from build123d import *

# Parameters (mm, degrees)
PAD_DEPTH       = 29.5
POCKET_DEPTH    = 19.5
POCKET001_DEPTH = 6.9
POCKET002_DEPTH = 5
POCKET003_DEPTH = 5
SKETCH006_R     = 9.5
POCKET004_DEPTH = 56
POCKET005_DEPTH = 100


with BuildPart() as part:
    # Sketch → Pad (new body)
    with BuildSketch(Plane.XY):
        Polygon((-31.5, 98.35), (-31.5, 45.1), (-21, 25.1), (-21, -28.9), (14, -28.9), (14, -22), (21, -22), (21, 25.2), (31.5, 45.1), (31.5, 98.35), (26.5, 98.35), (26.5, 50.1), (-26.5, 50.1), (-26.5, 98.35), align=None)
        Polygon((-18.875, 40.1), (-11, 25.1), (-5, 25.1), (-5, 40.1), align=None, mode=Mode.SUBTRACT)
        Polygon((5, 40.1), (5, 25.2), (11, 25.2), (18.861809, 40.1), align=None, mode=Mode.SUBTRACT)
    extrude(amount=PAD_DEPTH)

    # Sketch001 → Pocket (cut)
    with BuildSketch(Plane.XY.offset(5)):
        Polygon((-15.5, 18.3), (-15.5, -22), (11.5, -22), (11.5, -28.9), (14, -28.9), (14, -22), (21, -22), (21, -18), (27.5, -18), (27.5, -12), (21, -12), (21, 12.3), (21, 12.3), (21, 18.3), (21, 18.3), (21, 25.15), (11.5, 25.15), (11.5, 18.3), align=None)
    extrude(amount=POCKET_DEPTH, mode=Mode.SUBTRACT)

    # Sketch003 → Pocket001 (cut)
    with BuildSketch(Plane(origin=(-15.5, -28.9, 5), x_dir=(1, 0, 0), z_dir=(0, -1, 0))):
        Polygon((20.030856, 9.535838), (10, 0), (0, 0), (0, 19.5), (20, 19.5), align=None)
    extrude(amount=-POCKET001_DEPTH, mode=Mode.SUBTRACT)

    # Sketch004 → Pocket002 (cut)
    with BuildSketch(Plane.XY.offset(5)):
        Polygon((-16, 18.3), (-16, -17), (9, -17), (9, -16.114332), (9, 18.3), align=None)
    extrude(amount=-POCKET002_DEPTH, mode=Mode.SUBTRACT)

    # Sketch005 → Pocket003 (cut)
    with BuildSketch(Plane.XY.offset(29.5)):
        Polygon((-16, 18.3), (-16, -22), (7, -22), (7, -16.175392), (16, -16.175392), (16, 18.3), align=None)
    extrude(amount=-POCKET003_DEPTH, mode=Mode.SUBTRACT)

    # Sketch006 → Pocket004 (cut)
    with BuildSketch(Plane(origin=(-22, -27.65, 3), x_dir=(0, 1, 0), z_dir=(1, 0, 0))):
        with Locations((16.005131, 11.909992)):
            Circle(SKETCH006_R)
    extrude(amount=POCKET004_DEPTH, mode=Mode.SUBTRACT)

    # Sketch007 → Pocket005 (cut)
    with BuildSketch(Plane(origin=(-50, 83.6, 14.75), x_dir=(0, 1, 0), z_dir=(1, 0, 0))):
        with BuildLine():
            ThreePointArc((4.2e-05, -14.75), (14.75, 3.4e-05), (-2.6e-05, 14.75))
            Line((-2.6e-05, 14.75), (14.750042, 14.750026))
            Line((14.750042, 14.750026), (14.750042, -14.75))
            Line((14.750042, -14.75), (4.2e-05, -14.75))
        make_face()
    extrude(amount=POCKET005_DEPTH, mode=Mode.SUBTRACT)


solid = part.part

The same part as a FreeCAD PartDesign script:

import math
import FreeCAD as App
import Part
import Sketcher

V = App.Vector

doc = App.newDocument("Part")
body = doc.addObject("PartDesign::Body", "Body")

sketch1 = doc.addObject("Sketcher::SketchObject", "Sketch")
body.addObject(sketch1)
sketch1.AttachmentSupport = (doc.XY_Plane, [""])
sketch1.MapMode = "FlatFace"
sketch1.addGeometry([
    Part.LineSegment(V(-32, 98, 0), V(-32, 45, 0)),
    Part.LineSegment(V(-32, 45, 0), V(-21, 25, 0)),
    Part.LineSegment(V(-21, 25, 0), V(-21, -29, 0)),
    Part.LineSegment(V(-21, -29, 0), V(14, -29, 0)),
    Part.LineSegment(V(14, -29, 0), V(14, -22, 0)),
    Part.LineSegment(V(14, -22, 0), V(21, -22, 0)),
    Part.LineSegment(V(21, -22, 0), V(21, 25, 0)),
    Part.LineSegment(V(21, 25, 0), V(32, 45, 0)),
    Part.LineSegment(V(32, 45, 0), V(32, 98, 0)),
    Part.LineSegment(V(32, 98, 0), V(26, 98, 0)),
    Part.LineSegment(V(26, 98, 0), V(26, 50, 0)),
    Part.LineSegment(V(26, 50, 0), V(-26, 50, 0)),
    Part.LineSegment(V(-26, 50, 0), V(-26, 98, 0)),
    Part.LineSegment(V(-26, 98, 0), V(-32, 98, 0)),
    Part.LineSegment(V(-11, 25, 0), V(-19, 40, 0)),
    Part.LineSegment(V(-19, 40, 0), V(-5, 40, 0)),
    Part.LineSegment(V(-5, 40, 0), V(-5, 25, 0)),
    Part.LineSegment(V(-5, 25, 0), V(-11, 25, 0)),
    Part.LineSegment(V(5, 25, 0), V(5, 40, 0)),
    Part.LineSegment(V(5, 40, 0), V(19, 40, 0)),
    Part.LineSegment(V(19, 40, 0), V(11, 25, 0)),
    Part.LineSegment(V(11, 25, 0), V(5, 25, 0)),
], False)
sketch1.addConstraint([
    Sketcher.Constraint("Coincident", 0, 2, 1, 1),
    Sketcher.Constraint("Coincident", 1, 2, 2, 1),
    Sketcher.Constraint("Coincident", 2, 2, 3, 1),
    Sketcher.Constraint("Coincident", 3, 2, 4, 1),
    Sketcher.Constraint("Coincident", 4, 2, 5, 1),
    Sketcher.Constraint("Coincident", 5, 2, 6, 1),
    Sketcher.Constraint("Coincident", 6, 2, 7, 1),
    Sketcher.Constraint("Coincident", 7, 2, 8, 1),
    Sketcher.Constraint("Coincident", 8, 2, 9, 1),
    Sketcher.Constraint("Coincident", 9, 2, 10, 1),
    Sketcher.Constraint("Coincident", 10, 2, 11, 1),
    Sketcher.Constraint("Coincident", 11, 2, 12, 1),
    Sketcher.Constraint("Coincident", 12, 2, 13, 1),
    Sketcher.Constraint("Coincident", 13, 2, 0, 1),
    Sketcher.Constraint("Coincident", 14, 2, 15, 1),
    Sketcher.Constraint("Coincident", 15, 2, 16, 1),
    Sketcher.Constraint("Coincident", 16, 2, 17, 1),
    Sketcher.Constraint("Coincident", 17, 2, 14, 1),
    Sketcher.Constraint("Coincident", 18, 2, 19, 1),
    Sketcher.Constraint("Coincident", 19, 2, 20, 1),
    Sketcher.Constraint("Coincident", 20, 2, 21, 1),
    Sketcher.Constraint("Coincident", 21, 2, 18, 1),
    Sketcher.Constraint("Vertical", 0),
    Sketcher.Constraint("Vertical", 2),
    Sketcher.Constraint("Horizontal", 3),
    Sketcher.Constraint("Vertical", 4),
    Sketcher.Constraint("Horizontal", 5),
    Sketcher.Constraint("Vertical", 6),
    Sketcher.Constraint("Vertical", 8),
    Sketcher.Constraint("Horizontal", 9),
    Sketcher.Constraint("Vertical", 10),
    Sketcher.Constraint("Horizontal", 11),
    Sketcher.Constraint("Vertical", 12),
    Sketcher.Constraint("Horizontal", 13),
    Sketcher.Constraint("Horizontal", 15),
    Sketcher.Constraint("Vertical", 16),
    Sketcher.Constraint("Horizontal", 17),
    Sketcher.Constraint("Vertical", 18),
    Sketcher.Constraint("Horizontal", 19),
    Sketcher.Constraint("Horizontal", 21),
    Sketcher.Constraint("Symmetric", 0, 2, 7, 2, -2),
    Sketcher.Constraint("Symmetric", 9, 2, 12, 2, -2),
    Sketcher.Constraint("Symmetric", 15, 2, 18, 2, -2),
    Sketcher.Constraint("Parallel", 1, 14),
    Sketcher.Constraint("Parallel", 7, 20),
    Sketcher.Constraint("Horizontal", 1, 2, 16, 2),
    Sketcher.Constraint("Horizontal", 6, 2, 20, 2),
    Sketcher.Constraint("Equal", 17, 21),
    Sketcher.Constraint("DistanceX", 3, 1, 3, 2, 35.0),
    Sketcher.Constraint("DistanceX", 5, 1, 5, 2, 7.0),
    Sketcher.Constraint("DistanceX", 9, 2, 9, 1, 5.0),
    Sketcher.Constraint("DistanceX", 11, 2, 11, 1, 53.0),
    Sketcher.Constraint("DistanceX", 17, 2, 17, 1, 6.0),
    Sketcher.Constraint("DistanceY", 2, 2, 2, 1, 54.0),
    Sketcher.Constraint("DistanceY", 16, 2, 16, 1, 15.0),
    Sketcher.Constraint("DistanceY", 4, 1, 4, 2, 6.9),
    Sketcher.Constraint("DistanceY", 6, 1, 6, 2, 47.2),
    Sketcher.Constraint("DistanceX", 1, 2, -1, 1, 21.0),
    Sketcher.Constraint("DistanceY", 4, 2, -1, 1, 22.0),
    Sketcher.Constraint("DistanceX", 15, 2, -1, 1, 5.0),
    Sketcher.Constraint("DistanceY", 1, 2, 0, 2, 20.0),
    Sketcher.Constraint("DistanceY", 7, 2, 10, 2, 5.0),
    Sketcher.Constraint("DistanceY", 0, 2, 0, 1, 53.25),
])
pad1 = doc.addObject("PartDesign::Pad", "Pad")
body.addObject(pad1)
pad1.Profile = sketch1
pad1.Length = 29.5

sketch2 = doc.addObject("Sketcher::SketchObject", "Sketch001")
body.addObject(sketch2)
sketch2.AttachmentSupport = (doc.XY_Plane, [""])
sketch2.MapMode = "FlatFace"
sketch2.AttachmentOffset = App.Placement(V(0, 0, 5), App.Rotation())
sketch2.addGeometry([
    Part.LineSegment(V(-15.5, 18.3, 0), V(-15.5, -22, 0)),
    Part.LineSegment(V(-15.5, -22, 0), V(11.5, -22, 0)),
    Part.LineSegment(V(11.5, -22, 0), V(11.5, -28.9, 0)),
    Part.LineSegment(V(11.5, -28.9, 0), V(14, -28.9, 0)),
    Part.LineSegment(V(14, -28.9, 0), V(14, -22, 0)),
    Part.LineSegment(V(14, -22, 0), V(21, -22, 0)),
    Part.LineSegment(V(21, -22, 0), V(21, -18, 0)),
    Part.LineSegment(V(21, -18, 0), V(27.5, -18, 0)),
    Part.LineSegment(V(27.5, -18, 0), V(27.5, -12, 0)),
    Part.LineSegment(V(27.5, -12, 0), V(21, -12, 0)),
    Part.LineSegment(V(21, -12, 0), V(21, 25.1, 0)),
    Part.LineSegment(V(21, 25.1, 0), V(11.5, 25.1, 0)),
    Part.LineSegment(V(11.5, 25.1, 0), V(11.5, 18.3, 0)),
    Part.LineSegment(V(11.5, 18.3, 0), V(-15.5, 18.3, 0)),
], False)
sketch2.addConstraint([
    Sketcher.Constraint("Coincident", 0, 2, 1, 1),
    Sketcher.Constraint("Coincident", 1, 2, 2, 1),
    Sketcher.Constraint("Coincident", 2, 2, 3, 1),
    Sketcher.Constraint("Coincident", 3, 2, 4, 1),
    Sketcher.Constraint("Coincident", 4, 2, 5, 1),
    Sketcher.Constraint("Coincident", 5, 2, 6, 1),
    Sketcher.Constraint("Coincident", 6, 2, 7, 1),
    Sketcher.Constraint("Coincident", 7, 2, 8, 1),
    Sketcher.Constraint("Coincident", 8, 2, 9, 1),
    Sketcher.Constraint("Coincident", 9, 2, 10, 1),
    Sketcher.Constraint("Coincident", 10, 2, 11, 1),
    Sketcher.Constraint("Coincident", 11, 2, 12, 1),
    Sketcher.Constraint("Coincident", 12, 2, 13, 1),
    Sketcher.Constraint("Coincident", 13, 2, 0, 1),
    Sketcher.Constraint("Vertical", 0),
    Sketcher.Constraint("Horizontal", 1),
    Sketcher.Constraint("Vertical", 2),
    Sketcher.Constraint("Horizontal", 3),
    Sketcher.Constraint("Vertical", 4),
    Sketcher.Constraint("Horizontal", 5),
    Sketcher.Constraint("Vertical", 6),
    Sketcher.Constraint("Horizontal", 7),
    Sketcher.Constraint("Vertical", 8),
    Sketcher.Constraint("Horizontal", 9),
    Sketcher.Constraint("Vertical", 10),
    Sketcher.Constraint("Horizontal", 11),
    Sketcher.Constraint("Vertical", 12),
    Sketcher.Constraint("Horizontal", 13),
    Sketcher.Constraint("Horizontal", 1, 2, 4, 2),
    Sketcher.Constraint("Vertical", 6, 2, 9, 2),
    Sketcher.Constraint("Vertical", 2, 2, 11, 2),
    Sketcher.Constraint("DistanceX", 1, 1, 1, 2, 27.0),
    Sketcher.Constraint("DistanceX", 5, 1, 5, 2, 7.0),
    Sketcher.Constraint("DistanceY", 6, 1, 6, 2, 4.0),
    Sketcher.Constraint("DistanceY", 8, 1, 8, 2, 6.0),
    Sketcher.Constraint("DistanceX", 3, 1, 3, 2, 2.5),
    Sketcher.Constraint("DistanceX", 7, 1, 7, 2, 6.5),
    Sketcher.Constraint("DistanceY", 0, 2, 0, 1, 40.3),
    Sketcher.Constraint("DistanceY", 2, 2, 2, 1, 6.9),
    Sketcher.Constraint("DistanceY", 0, 2, -1, 1, 22.0),
    Sketcher.Constraint("DistanceX", -1, 1, 3, 2, 14.0),
    Sketcher.Constraint("DistanceY", 10, 1, 10, 2, 37.15),
])
pocket1 = doc.addObject("PartDesign::Pocket", "Pocket")
body.addObject(pocket1)
pocket1.Profile = sketch2
pocket1.Length = 19.5
pocket1.Reversed = True

sketch3 = doc.addObject("Sketcher::SketchObject", "Sketch002")
body.addObject(sketch3)
sketch3.AttachmentSupport = (doc.XZ_Plane, [""])
sketch3.MapMode = "FlatFace"
sketch3.AttachmentOffset = App.Placement(V(0, 0, 28.9), App.Rotation())
sketch3.addGeometry([
    Part.LineSegment(V(-6, 5, 0), V(5, 15, 0)),
    Part.LineSegment(V(5, 15, 0), V(4, 24, 0)),
    Part.LineSegment(V(4, 24, 0), V(-16, 24, 0)),
    Part.LineSegment(V(-16, 24, 0), V(-16, 5, 0)),
    Part.LineSegment(V(-16, 5, 0), V(-6, 5, 0)),
], False)
sketch3.addConstraint([
    Sketcher.Constraint("Coincident", 0, 2, 1, 1),
    Sketcher.Constraint("Coincident", 1, 2, 2, 1),
    Sketcher.Constraint("Coincident", 2, 2, 3, 1),
    Sketcher.Constraint("Coincident", 3, 2, 4, 1),
    Sketcher.Constraint("Coincident", 4, 2, 0, 1),
    Sketcher.Constraint("Horizontal", 2),
    Sketcher.Constraint("Vertical", 3),
    Sketcher.Constraint("Horizontal", 4),
    Sketcher.Constraint("DistanceX", 2, 2, 2, 1, 20.0),
    Sketcher.Constraint("DistanceX", 4, 1, 4, 2, 10.0),
    Sketcher.Constraint("DistanceY", 3, 2, 3, 1, 19.5),
    Sketcher.Constraint("DistanceY", -1, 1, 3, 2, 5.0),
    Sketcher.Constraint("DistanceX", -1, 1, 1, 2, 4.5),
    Sketcher.Constraint("Distance", 0, 13.840169),
    Sketcher.Constraint("Distance", 1, 9.96421),
])
pocket2 = doc.addObject("PartDesign::Pocket", "Pocket001")
body.addObject(pocket2)
pocket2.Profile = sketch3
pocket2.Length = 6.9

sketch4 = doc.addObject("Sketcher::SketchObject", "Sketch003")
body.addObject(sketch4)
sketch4.AttachmentSupport = (doc.XY_Plane, [""])
sketch4.MapMode = "FlatFace"
sketch4.AttachmentOffset = App.Placement(V(0, 0, 5), App.Rotation())
sketch4.addGeometry([
    Part.LineSegment(V(-16, 18, 0), V(-16, -17, 0)),
    Part.LineSegment(V(-16, -17, 0), V(9, -17, 0)),
    Part.LineSegment(V(9, -17, 0), V(9, 18, 0)),
    Part.LineSegment(V(9, 18, 0), V(-16, 18, 0)),
], False)
sketch4.addConstraint([
    Sketcher.Constraint("Coincident", 0, 2, 1, 1),
    Sketcher.Constraint("Coincident", 1, 2, 2, 1),
    Sketcher.Constraint("Coincident", 2, 2, 3, 1),
    Sketcher.Constraint("Coincident", 3, 2, 0, 1),
    Sketcher.Constraint("Vertical", 0),
    Sketcher.Constraint("Horizontal", 1),
    Sketcher.Constraint("Vertical", 2),
    Sketcher.Constraint("Horizontal", 3),
    Sketcher.Constraint("DistanceX", 1, 1, 1, 2, 25.0),
    Sketcher.Constraint("DistanceY", 0, 2, 0, 1, 35.3),
    Sketcher.Constraint("DistanceX", 0, 2, -1, 1, 16.0),
    Sketcher.Constraint("DistanceY", 0, 2, -1, 1, 17.0),
])
pocket3 = doc.addObject("PartDesign::Pocket", "Pocket002")
body.addObject(pocket3)
pocket3.Profile = sketch4
pocket3.Length = 5

sketch5 = doc.addObject("Sketcher::SketchObject", "Sketch004")
body.addObject(sketch5)
sketch5.AttachmentSupport = (doc.XY_Plane, [""])
sketch5.MapMode = "FlatFace"
sketch5.AttachmentOffset = App.Placement(V(0, 0, 29.5), App.Rotation())
sketch5.addGeometry([
    Part.LineSegment(V(-16, 18, 0), V(-16, -22, 0)),
    Part.LineSegment(V(-16, -22, 0), V(7, -22, 0)),
    Part.LineSegment(V(7, -22, 0), V(7, -16, 0)),
    Part.LineSegment(V(7, -16, 0), V(16, -16, 0)),
    Part.LineSegment(V(16, -16, 0), V(16, 18, 0)),
    Part.LineSegment(V(16, 18, 0), V(-16, 18, 0)),
], False)
sketch5.addConstraint([
    Sketcher.Constraint("Coincident", 0, 2, 1, 1),
    Sketcher.Constraint("Coincident", 1, 2, 2, 1),
    Sketcher.Constraint("Coincident", 2, 2, 3, 1),
    Sketcher.Constraint("Coincident", 3, 2, 4, 1),
    Sketcher.Constraint("Coincident", 4, 2, 5, 1),
    Sketcher.Constraint("Coincident", 5, 2, 0, 1),
    Sketcher.Constraint("Vertical", 0),
    Sketcher.Constraint("Horizontal", 1),
    Sketcher.Constraint("Vertical", 2),
    Sketcher.Constraint("Horizontal", 3),
    Sketcher.Constraint("Vertical", 4),
    Sketcher.Constraint("Horizontal", 5),
    Sketcher.Constraint("DistanceX", 1, 1, 1, 2, 23.0),
    Sketcher.Constraint("DistanceX", 3, 1, 3, 2, 9.0),
    Sketcher.Constraint("DistanceY", 0, 2, 0, 1, 40.3),
    Sketcher.Constraint("DistanceX", 0, 2, -1, 1, 16.0),
    Sketcher.Constraint("DistanceY", 0, 2, -1, 1, 22.0),
    Sketcher.Constraint("DistanceY", 2, 1, 2, 2, 5.824608),
])
pocket4 = doc.addObject("PartDesign::Pocket", "Pocket003")
body.addObject(pocket4)
pocket4.Profile = sketch5
pocket4.Length = 5

sketch6 = doc.addObject("Sketcher::SketchObject", "Sketch005")
body.addObject(sketch6)
sketch6.AttachmentSupport = (doc.YZ_Plane, [""])
sketch6.MapMode = "FlatFace"
sketch6.AttachmentOffset = App.Placement(V(0, 0, -22), App.Rotation())
sketch6.addGeometry(Part.Circle(V(-12, 15, 0), V(0, 0, 1), 10), False)
sketch6.addConstraint([
    Sketcher.Constraint("Diameter", 0, 19.0),
    Sketcher.Constraint("DistanceX", 0, 3, -1, 1, 11.644869),
    Sketcher.Constraint("DistanceY", -1, 1, 0, 3, 14.909992),
])
pocket5 = doc.addObject("PartDesign::Pocket", "Pocket004")
body.addObject(pocket5)
pocket5.Profile = sketch6
pocket5.Length = 56
pocket5.Reversed = True

sketch7 = doc.addObject("Sketcher::SketchObject", "Sketch006")
body.addObject(sketch7)
sketch7.AttachmentSupport = (doc.YZ_Plane, [""])
sketch7.MapMode = "FlatFace"
sketch7.AttachmentOffset = App.Placement(V(0, 0, -50), App.Rotation())
sketch7.addGeometry([
    Part.ArcOfCircle(Part.Circle(V(84, 15, 0), V(0, 0, 1), 15), math.radians(-90), math.radians(90)),
    Part.LineSegment(V(84, 0, 0), V(98, 0, 0)),
    Part.LineSegment(V(98, 0, 0), V(98, 30, 0)),
    Part.LineSegment(V(98, 30, 0), V(84, 30, 0)),
], False)
sketch7.addConstraint([
    Sketcher.Constraint("Coincident", 0, 1, 1, 1),
    Sketcher.Constraint("Coincident", 1, 2, 2, 1),
    Sketcher.Constraint("Coincident", 2, 2, 3, 1),
    Sketcher.Constraint("Tangent", 3, 2, 0, 2),
    Sketcher.Constraint("Horizontal", 1),
    Sketcher.Constraint("Vertical", 2),
    Sketcher.Constraint("PointOnObject", 0, 1, -1),
    Sketcher.Constraint("Radius", 0, 14.75),
    Sketcher.Constraint("DistanceX", 1, 1, 1, 2, 14.75),
    Sketcher.Constraint("DistanceX", -1, 1, 0, 3, 83.6),
    Sketcher.Constraint("Distance", 3, 14.750068),
    Sketcher.Constraint("DistanceY", 2, 1, 2, 2, 29.500026),
])
pocket6 = doc.addObject("PartDesign::Pocket", "Pocket005")
body.addObject(pocket6)
pocket6.Profile = sketch7
pocket6.Length = 100
pocket6.Reversed = True

doc.recompute()
